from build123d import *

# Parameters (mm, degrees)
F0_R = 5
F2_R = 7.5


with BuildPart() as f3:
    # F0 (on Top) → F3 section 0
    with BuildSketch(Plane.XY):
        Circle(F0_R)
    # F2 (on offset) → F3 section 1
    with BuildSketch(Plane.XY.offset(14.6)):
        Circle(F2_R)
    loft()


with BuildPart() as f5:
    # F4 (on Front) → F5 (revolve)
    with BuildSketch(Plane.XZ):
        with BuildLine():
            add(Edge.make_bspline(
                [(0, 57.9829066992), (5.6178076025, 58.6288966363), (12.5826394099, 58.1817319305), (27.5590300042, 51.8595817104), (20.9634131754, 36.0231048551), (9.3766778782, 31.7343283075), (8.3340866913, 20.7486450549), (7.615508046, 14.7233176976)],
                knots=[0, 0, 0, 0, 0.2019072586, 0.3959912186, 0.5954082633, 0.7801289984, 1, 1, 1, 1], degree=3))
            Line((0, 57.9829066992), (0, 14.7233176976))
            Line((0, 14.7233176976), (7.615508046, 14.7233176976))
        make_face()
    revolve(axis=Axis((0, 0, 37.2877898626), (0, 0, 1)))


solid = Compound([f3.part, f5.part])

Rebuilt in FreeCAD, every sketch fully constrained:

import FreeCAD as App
import Part
import Sketcher

V = App.Vector

doc = App.newDocument("Part")
body = doc.addObject("PartDesign::Body", "Body")

sketch1 = body.newObject("Sketcher::SketchObject", "Sketch")
sketch1.AttachmentSupport = (doc.getObject("XY_Plane"), [""])
sketch1.MapMode = "FlatFace"
sketch1.addGeometry(Part.Circle(V(0, 0, 0), V(0, 0, 1), 5), False)
sketch1.addConstraint([
    Sketcher.Constraint("Coincident", 0, 3, -1, 1),
    Sketcher.Constraint("Diameter", 0, 10.0),
])

sketch2 = body.newObject("Sketcher::SketchObject", "Sketch001")
sketch2.AttachmentSupport = (doc.getObject("XY_Plane"), [""])
sketch2.MapMode = "FlatFace"
sketch2.AttachmentOffset = App.Placement(V(0, 0, 14.6), App.Rotation())
sketch2.addGeometry(Part.Circle(V(0, 0, 0), V(0, 0, 1), 8), False)
sketch2.addConstraint([
    Sketcher.Constraint("Coincident", 0, 3, -1, 1),
    Sketcher.Constraint("Diameter", 0, 15.0),
])

additiveloft = body.newObject("PartDesign::AdditiveLoft", "AdditiveLoft")
additiveloft.Profile = sketch1
additiveloft.Sections = [sketch2]
body2 = doc.addObject("PartDesign::Body", "Body001")

sketch3 = body2.newObject("Sketcher::SketchObject", "Sketch002")
sketch3.AttachmentSupport = (doc.getObject("XZ_Plane001"), [""])
sketch3.MapMode = "FlatFace"
sketch3.addGeometry([
    Part.BSplineCurve([V(0, 57.982907, 0), V(5.617808, 58.628897, 0), V(12.582639, 58.181732, 0), V(27.55903, 51.859582, 0), V(20.963413, 36.023105, 0), V(9.376678, 31.734328, 0), V(8.334087, 20.748645, 0), V(7.615508, 14.723318, 0)], [4, 1, 1, 1, 1, 4], [0, 0.201907259, 0.395991219, 0.595408263, 0.780128998, 1], False, 3, [1, 1, 1, 1, 1, 1, 1, 1], False),
    Part.LineSegment(V(0, 57.982907, 0), V(0, 14.723318, 0)),
    Part.LineSegment(V(0, 14.723318, 0), V(7.615508, 14.723318, 0)),
], False)
sketch3.addConstraint([
    Sketcher.Constraint("Block", 0),
    Sketcher.Constraint("Coincident", 0, 1, 1, 1),
    Sketcher.Constraint("Coincident", 1, 2, 2, 1),
    Sketcher.Constraint("Coincident", 2, 2, 0, 2),
    Sketcher.Constraint("Vertical", 1),
    Sketcher.Constraint("Horizontal", 2),
])
revolution = body2.newObject("PartDesign::Revolution", "Revolution")
revolution.Profile = sketch3
revolution.ReferenceAxis = (sketch3, ["V_Axis"])
revolution.Angle = 360

doc.recompute()
